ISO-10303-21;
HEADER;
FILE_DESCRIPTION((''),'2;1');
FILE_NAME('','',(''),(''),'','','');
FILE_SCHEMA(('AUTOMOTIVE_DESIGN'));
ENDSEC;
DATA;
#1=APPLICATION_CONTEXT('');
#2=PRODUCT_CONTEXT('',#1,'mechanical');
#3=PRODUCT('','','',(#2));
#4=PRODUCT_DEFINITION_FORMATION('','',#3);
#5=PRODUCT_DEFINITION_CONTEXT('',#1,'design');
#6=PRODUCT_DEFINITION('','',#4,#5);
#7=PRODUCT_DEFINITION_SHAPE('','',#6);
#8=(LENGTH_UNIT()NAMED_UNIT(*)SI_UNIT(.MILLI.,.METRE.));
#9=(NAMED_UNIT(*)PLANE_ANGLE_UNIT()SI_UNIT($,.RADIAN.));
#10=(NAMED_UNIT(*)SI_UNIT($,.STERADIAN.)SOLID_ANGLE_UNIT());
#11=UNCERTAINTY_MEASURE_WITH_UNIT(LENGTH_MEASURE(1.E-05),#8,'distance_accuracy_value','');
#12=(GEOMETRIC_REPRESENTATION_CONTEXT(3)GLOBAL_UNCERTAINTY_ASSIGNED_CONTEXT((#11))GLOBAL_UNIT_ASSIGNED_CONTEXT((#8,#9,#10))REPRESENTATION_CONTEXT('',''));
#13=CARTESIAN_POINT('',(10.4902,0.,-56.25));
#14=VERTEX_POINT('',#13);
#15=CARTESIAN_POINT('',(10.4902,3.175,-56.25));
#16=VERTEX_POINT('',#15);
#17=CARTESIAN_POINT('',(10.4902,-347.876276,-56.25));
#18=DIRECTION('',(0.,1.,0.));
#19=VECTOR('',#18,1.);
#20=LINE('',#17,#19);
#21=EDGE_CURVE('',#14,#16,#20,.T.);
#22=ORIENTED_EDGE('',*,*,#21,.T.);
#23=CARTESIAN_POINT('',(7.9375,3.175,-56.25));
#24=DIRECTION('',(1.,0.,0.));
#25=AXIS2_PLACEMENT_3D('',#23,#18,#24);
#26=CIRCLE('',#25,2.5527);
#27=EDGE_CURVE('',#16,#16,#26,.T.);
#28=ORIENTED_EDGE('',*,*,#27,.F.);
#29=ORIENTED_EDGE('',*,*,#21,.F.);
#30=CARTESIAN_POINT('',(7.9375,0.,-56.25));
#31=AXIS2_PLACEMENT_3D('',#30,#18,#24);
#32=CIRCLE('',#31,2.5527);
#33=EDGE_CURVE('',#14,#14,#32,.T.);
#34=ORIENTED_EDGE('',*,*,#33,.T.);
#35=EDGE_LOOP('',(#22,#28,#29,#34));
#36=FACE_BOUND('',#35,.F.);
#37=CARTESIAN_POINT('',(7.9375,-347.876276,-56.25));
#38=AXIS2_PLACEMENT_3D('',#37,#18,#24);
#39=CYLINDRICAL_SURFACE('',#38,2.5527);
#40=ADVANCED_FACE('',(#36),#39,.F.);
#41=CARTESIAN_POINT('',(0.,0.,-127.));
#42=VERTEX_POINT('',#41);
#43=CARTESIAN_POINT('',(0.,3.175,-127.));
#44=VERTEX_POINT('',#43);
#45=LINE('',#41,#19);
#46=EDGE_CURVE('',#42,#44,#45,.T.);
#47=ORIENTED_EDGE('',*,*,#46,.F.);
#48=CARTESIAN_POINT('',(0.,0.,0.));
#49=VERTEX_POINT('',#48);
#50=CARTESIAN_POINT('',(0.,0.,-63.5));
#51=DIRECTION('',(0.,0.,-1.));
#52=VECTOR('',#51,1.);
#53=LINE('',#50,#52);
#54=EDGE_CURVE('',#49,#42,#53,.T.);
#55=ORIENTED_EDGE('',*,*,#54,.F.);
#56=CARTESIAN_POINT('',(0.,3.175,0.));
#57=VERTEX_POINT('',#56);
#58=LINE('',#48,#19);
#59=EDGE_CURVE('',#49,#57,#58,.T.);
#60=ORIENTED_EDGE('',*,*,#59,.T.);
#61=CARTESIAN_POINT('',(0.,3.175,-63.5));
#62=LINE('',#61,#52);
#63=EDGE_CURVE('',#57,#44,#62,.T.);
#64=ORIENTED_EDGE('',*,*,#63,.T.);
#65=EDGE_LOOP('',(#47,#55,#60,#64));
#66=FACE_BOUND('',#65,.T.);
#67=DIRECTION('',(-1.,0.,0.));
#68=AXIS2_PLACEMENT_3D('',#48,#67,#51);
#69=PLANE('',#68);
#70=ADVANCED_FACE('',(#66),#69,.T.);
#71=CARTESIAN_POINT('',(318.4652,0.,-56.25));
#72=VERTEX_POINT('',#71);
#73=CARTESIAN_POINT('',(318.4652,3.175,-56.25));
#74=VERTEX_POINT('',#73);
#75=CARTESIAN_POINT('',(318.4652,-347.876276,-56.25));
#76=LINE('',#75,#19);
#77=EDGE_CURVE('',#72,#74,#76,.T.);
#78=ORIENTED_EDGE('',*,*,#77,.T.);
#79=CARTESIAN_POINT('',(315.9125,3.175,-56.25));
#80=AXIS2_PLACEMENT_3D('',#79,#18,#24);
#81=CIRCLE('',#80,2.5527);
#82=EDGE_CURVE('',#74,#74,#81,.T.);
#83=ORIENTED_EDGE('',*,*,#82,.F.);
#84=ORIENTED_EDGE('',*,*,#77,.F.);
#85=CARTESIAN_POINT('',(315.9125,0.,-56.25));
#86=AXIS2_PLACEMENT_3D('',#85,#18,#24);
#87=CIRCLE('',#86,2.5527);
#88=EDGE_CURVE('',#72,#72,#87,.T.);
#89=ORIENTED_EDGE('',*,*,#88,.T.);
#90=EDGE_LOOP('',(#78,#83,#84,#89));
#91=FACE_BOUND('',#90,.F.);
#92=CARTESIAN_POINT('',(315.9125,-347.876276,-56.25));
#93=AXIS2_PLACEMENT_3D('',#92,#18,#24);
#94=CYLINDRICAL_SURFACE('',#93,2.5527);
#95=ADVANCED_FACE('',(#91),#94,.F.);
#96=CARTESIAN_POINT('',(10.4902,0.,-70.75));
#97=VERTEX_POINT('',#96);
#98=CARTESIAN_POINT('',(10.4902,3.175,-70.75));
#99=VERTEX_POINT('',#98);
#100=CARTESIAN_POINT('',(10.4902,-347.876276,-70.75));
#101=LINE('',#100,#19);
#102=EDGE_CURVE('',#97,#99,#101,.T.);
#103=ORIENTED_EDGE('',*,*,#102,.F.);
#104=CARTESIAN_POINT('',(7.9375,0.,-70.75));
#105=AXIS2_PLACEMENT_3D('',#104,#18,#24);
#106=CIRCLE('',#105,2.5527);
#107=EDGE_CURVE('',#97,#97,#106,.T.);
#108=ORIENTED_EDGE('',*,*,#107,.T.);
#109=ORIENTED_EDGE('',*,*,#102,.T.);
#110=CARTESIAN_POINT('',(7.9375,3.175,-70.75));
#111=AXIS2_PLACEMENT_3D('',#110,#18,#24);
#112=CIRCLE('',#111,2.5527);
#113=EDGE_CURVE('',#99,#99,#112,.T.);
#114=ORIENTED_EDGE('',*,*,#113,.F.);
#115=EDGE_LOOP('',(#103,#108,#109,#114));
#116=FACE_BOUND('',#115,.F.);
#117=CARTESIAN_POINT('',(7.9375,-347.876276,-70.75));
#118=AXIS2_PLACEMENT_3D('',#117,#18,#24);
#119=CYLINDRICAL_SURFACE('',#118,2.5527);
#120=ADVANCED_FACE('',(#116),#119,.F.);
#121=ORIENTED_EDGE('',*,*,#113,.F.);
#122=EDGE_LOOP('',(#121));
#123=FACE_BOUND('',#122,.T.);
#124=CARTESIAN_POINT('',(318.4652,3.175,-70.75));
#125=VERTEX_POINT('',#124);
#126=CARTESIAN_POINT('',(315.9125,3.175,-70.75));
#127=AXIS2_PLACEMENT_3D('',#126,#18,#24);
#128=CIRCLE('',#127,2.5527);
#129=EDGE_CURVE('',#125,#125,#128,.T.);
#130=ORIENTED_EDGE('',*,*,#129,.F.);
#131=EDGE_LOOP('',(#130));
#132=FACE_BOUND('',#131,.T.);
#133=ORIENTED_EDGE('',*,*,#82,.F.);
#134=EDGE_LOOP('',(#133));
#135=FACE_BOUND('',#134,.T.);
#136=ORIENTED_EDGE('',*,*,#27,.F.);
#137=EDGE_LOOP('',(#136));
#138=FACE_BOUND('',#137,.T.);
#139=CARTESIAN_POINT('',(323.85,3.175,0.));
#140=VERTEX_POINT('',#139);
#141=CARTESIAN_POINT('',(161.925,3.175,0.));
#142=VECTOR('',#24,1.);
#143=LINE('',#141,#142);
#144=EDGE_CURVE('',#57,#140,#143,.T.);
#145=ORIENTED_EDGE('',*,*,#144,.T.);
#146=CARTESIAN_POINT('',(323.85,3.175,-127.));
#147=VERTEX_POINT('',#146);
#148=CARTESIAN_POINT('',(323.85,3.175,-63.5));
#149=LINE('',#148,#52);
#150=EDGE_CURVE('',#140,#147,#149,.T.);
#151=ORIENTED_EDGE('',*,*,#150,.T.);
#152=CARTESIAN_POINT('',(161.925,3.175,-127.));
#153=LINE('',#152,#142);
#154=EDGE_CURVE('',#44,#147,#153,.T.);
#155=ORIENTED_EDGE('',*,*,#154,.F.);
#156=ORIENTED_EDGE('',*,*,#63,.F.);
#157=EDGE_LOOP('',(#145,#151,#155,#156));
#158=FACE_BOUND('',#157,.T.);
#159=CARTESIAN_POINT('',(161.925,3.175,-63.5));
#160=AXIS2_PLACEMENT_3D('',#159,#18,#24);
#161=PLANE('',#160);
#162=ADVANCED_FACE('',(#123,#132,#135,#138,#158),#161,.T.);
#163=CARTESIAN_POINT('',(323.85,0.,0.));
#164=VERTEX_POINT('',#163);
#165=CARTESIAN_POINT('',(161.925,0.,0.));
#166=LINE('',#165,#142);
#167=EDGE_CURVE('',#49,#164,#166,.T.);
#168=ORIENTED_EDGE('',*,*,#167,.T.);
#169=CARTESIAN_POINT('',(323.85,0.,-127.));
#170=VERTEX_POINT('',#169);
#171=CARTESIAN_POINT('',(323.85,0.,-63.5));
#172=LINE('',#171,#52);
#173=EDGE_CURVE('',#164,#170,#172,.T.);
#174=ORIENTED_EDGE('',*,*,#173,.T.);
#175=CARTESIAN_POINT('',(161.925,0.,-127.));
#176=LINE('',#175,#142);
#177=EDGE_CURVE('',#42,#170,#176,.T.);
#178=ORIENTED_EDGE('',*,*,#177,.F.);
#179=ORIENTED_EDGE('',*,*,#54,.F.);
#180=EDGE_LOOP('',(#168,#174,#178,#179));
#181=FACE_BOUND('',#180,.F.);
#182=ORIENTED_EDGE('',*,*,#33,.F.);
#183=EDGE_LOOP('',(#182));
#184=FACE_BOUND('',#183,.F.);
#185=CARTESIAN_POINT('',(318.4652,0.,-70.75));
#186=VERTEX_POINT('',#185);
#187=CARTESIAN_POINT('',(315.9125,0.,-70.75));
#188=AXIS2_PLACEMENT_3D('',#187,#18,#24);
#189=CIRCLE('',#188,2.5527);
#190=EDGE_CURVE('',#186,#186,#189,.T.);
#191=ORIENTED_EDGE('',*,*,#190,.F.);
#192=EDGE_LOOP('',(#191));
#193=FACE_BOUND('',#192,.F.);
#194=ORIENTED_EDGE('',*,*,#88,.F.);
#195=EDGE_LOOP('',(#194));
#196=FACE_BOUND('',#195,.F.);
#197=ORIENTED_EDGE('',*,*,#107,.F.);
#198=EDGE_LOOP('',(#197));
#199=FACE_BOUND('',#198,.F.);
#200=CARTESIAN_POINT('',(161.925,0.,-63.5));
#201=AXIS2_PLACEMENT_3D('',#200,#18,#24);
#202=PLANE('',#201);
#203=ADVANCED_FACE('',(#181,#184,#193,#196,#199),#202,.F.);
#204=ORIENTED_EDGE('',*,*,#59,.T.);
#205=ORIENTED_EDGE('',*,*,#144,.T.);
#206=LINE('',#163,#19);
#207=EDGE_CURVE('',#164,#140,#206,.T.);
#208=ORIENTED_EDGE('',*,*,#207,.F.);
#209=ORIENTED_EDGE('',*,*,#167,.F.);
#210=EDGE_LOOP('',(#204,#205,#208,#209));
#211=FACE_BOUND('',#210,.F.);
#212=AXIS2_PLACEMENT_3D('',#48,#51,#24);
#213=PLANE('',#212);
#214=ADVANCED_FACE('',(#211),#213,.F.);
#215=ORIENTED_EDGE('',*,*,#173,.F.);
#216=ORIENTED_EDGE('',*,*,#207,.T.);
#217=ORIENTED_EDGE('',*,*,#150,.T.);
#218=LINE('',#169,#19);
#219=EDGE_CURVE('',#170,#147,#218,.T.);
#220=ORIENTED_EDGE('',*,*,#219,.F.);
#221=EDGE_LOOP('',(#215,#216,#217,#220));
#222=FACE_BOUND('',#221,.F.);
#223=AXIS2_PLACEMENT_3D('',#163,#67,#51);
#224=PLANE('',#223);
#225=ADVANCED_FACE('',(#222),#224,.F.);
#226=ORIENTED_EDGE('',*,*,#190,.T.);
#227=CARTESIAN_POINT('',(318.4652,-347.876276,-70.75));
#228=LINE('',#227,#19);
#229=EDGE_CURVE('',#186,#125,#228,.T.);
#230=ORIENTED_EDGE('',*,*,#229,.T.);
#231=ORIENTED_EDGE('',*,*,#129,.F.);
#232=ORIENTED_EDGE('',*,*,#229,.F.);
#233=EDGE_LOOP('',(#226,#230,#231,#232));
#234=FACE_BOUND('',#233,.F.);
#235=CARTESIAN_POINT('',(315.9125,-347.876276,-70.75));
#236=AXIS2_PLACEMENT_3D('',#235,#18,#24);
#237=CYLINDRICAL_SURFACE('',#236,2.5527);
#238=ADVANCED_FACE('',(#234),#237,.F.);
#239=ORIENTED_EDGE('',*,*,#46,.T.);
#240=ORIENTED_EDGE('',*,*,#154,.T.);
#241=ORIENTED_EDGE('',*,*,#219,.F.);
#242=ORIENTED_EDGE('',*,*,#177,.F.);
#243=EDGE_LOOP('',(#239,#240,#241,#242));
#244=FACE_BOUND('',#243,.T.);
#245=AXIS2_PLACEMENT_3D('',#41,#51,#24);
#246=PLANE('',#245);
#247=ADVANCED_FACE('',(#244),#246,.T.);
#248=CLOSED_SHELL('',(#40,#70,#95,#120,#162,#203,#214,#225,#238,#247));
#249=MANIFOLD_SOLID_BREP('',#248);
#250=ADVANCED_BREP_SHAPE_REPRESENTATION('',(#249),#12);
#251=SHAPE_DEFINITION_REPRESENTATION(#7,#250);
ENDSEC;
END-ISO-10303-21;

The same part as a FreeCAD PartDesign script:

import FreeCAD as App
import Part
import Sketcher
Q = App.Units.Quantity

doc = App.newDocument("Part")
body = doc.addObject("PartDesign::Body", "Body")

# Sketch on XZ plane
sketch1 = body.newObject("Sketcher::SketchObject", "Sketch")
sketch1.AttachmentSupport = (doc.getObject("XZ_Plane"), [""])
sketch1.MapMode = "FlatFace"
sketch1.addGeometry([
    Part.LineSegment(App.Vector(0, -127, 0), App.Vector(0, 0, 0)),
    Part.LineSegment(App.Vector(0, 0, 0), App.Vector(324, 0, 0)),
    Part.LineSegment(App.Vector(324, 0, 0), App.Vector(324, -127, 0)),
    Part.LineSegment(App.Vector(324, -127, 0), App.Vector(0, -127, 0)),
], False)
sketch1.addConstraint([
    Sketcher.Constraint("Coincident", 0, 2, 1, 1),
    Sketcher.Constraint("Coincident", 1, 2, 2, 1),
    Sketcher.Constraint("Coincident", 2, 2, 3, 1),
    Sketcher.Constraint("Coincident", 3, 2, 0, 1),
    Sketcher.Constraint("Vertical", 0),
    Sketcher.Constraint("Horizontal", 1),
    Sketcher.Constraint("Vertical", 2),
    Sketcher.Constraint("Horizontal", 3),
    Sketcher.Constraint("Coincident", 0, 2, -1, 1),
    Sketcher.Constraint("DistanceY", 0, 1, 0, 2, Q("5 in")),
    Sketcher.Constraint("DistanceX", 1, 1, 1, 2, Q("12.75 in")),
])
pad1 = body.newObject("PartDesign::Pad", "Pad")
pad1.Profile = sketch1
pad1.Length = Q("0.125 in")
pad1.Reversed = True

# Sketch on XZ plane
sketch2 = body.newObject("Sketcher::SketchObject", "Sketch001")
sketch2.AttachmentSupport = (doc.getObject("XZ_Plane"), [""])
sketch2.MapMode = "FlatFace"
sketch2.addGeometry([
    Part.Circle(App.Vector(315.9, -56.2, 0), App.Vector(0, 0, 1), 2.6),
    Part.Circle(App.Vector(315.9, -70.8, 0), App.Vector(0, 0, 1), 2.6),
    Part.Circle(App.Vector(7.9, -70.8, 0), App.Vector(0, 0, 1), 2.6),
    Part.Circle(App.Vector(7.9, -56.2, 0), App.Vector(0, 0, 1), 2.6),
], False)
sketch2.addConstraint([
    Sketcher.Constraint("Equal", 0, 1),
    Sketcher.Constraint("Equal", 1, 2),
    Sketcher.Constraint("Equal", 2, 3),
    Sketcher.Constraint("Horizontal", 1, 3, 2, 3),
    Sketcher.Constraint("Horizontal", 0, 3, 3, 3),
    Sketcher.Constraint("Vertical", 0, 3, 1, 3),
    Sketcher.Constraint("Vertical", 2, 3, 3, 3),
    Sketcher.Constraint("Diameter", 0, Q("0.201 in")),
    Sketcher.Constraint("DistanceX", -1, 1, 0, 3, Q("12.4375 in")),
    Sketcher.Constraint("DistanceX", -1, 1, 2, 3, Q("0.3125 in")),
    Sketcher.Constraint("DistanceY", 0, 3, -1, 1, 56.25),
    Sketcher.Constraint("DistanceY", 1, 3, -1, 1, 70.75),
])
doc.recompute()
hole = body.newObject("PartDesign::Hole", "Hole")
hole.Profile = sketch2
hole.ThreadType = "None"
hole.Diameter = Q("0.201 in")
hole.DepthType = "ThroughAll"

doc.recompute()
